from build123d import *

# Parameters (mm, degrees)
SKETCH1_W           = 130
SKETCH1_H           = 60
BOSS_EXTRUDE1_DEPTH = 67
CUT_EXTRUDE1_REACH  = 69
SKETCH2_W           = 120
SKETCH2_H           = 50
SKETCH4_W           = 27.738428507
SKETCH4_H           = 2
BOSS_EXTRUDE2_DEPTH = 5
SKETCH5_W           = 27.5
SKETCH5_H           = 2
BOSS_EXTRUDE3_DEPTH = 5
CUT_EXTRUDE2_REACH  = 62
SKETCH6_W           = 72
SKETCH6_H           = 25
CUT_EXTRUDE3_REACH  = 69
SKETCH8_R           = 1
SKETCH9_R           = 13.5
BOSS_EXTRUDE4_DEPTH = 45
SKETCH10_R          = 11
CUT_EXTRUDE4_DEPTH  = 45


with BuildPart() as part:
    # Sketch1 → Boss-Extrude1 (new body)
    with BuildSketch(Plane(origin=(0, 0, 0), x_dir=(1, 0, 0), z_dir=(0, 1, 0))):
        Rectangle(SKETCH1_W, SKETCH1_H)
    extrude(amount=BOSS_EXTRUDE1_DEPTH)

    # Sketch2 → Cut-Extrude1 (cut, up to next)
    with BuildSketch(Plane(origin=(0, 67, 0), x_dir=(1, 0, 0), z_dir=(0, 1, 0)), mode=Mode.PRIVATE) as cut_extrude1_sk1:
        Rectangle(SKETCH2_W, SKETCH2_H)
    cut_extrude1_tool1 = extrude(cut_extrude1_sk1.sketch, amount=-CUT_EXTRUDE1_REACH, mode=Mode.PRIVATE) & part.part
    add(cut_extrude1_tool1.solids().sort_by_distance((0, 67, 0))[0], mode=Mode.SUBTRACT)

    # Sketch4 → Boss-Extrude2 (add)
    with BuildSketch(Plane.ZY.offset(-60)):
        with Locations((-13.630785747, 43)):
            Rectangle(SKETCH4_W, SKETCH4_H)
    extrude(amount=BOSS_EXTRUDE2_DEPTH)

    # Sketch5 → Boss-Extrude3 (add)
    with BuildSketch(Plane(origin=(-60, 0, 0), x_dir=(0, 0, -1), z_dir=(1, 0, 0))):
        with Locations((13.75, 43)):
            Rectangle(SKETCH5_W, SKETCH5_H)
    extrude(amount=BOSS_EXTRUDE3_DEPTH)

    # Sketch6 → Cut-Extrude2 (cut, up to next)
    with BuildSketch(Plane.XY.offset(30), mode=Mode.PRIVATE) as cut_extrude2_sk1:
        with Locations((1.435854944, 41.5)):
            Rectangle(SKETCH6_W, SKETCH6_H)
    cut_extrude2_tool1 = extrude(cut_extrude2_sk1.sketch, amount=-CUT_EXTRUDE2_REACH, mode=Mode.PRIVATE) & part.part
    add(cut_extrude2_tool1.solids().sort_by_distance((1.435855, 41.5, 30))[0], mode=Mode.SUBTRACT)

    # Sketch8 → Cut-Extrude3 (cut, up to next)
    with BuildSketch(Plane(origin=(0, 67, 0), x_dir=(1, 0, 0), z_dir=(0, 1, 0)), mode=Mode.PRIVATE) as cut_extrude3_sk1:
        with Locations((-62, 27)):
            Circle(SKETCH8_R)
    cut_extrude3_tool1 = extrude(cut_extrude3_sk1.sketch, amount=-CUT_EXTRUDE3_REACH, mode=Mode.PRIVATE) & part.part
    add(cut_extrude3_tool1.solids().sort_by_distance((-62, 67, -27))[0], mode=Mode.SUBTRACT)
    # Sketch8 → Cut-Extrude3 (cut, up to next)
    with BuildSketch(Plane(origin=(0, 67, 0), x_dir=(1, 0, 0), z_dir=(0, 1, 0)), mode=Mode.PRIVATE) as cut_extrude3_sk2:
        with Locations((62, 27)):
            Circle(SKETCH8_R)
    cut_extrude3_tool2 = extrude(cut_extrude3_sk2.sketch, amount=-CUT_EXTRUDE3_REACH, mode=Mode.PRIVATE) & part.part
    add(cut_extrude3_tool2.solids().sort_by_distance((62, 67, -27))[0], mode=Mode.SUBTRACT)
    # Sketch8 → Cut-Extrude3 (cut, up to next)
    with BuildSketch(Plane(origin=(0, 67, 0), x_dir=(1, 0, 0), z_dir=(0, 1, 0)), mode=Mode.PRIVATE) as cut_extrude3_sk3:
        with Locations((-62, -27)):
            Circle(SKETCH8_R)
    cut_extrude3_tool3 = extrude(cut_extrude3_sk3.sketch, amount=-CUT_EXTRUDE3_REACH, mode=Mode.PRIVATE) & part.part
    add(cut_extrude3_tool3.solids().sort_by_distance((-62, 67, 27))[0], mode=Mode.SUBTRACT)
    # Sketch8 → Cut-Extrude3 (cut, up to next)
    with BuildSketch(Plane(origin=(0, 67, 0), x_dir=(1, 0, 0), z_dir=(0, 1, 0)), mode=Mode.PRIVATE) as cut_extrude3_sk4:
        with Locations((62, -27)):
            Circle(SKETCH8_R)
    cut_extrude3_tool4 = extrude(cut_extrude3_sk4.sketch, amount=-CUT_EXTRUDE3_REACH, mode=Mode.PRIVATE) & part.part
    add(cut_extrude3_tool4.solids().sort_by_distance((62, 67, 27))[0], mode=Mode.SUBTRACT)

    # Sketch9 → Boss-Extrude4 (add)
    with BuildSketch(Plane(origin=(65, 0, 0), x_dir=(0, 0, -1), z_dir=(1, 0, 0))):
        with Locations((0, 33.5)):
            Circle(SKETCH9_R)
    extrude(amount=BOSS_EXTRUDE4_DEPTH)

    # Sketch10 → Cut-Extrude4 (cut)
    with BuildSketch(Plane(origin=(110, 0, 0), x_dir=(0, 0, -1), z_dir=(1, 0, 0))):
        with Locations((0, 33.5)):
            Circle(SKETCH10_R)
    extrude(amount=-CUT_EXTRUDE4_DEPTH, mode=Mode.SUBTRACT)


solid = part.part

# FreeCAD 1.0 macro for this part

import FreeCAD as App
import Part
import Sketcher
from FreeCAD import Vector
Q = App.Units.Quantity

doc = App.newDocument("Part")
body = doc.addObject("PartDesign::Body", "Body")

sketch1 = doc.addObject("Sketcher::SketchObject", "Sketch")
body.addObject(sketch1)
sketch1.AttachmentSupport = (doc.XZ_Plane, [""])
sketch1.MapMode = "FlatFace"
sketch1.addGeometry([
    Part.LineSegment(Vector(-65, -30, 0), Vector(-65, 30, 0)),
    Part.LineSegment(Vector(-65, 30, 0), Vector(65, 30, 0)),
    Part.LineSegment(Vector(65, 30, 0), Vector(65, -30, 0)),
    Part.LineSegment(Vector(65, -30, 0), Vector(-65, -30, 0)),
], False)
sketch1.addConstraint([
    Sketcher.Constraint("Coincident", 0, 2, 1, 1),
    Sketcher.Constraint("Coincident", 1, 2, 2, 1),
    Sketcher.Constraint("Coincident", 2, 2, 3, 1),
    Sketcher.Constraint("Coincident", 3, 2, 0, 1),
    Sketcher.Constraint("Vertical", 0),
    Sketcher.Constraint("Horizontal", 1),
    Sketcher.Constraint("Vertical", 2),
    Sketcher.Constraint("Horizontal", 3),
    Sketcher.Constraint("Symmetric", 0, 2, 2, 2, -1, 1),
    Sketcher.Constraint("DistanceX", 1, 1, 1, 2, Q("130 mm")),
    Sketcher.Constraint("DistanceY", 0, 1, 0, 2, Q("60 mm")),
])
pad1 = doc.addObject("PartDesign::Pad", "Pad")
body.addObject(pad1)
pad1.Profile = sketch1
pad1.Length = 67
pad1.Reversed = True

sketch2 = doc.addObject("Sketcher::SketchObject", "Sketch001")
body.addObject(sketch2)
sketch2.AttachmentSupport = (doc.XZ_Plane, [""])
sketch2.MapMode = "FlatFace"
sketch2.AttachmentOffset = App.Placement(Vector(0, 0, -67), App.Rotation())
sketch2.addGeometry([
    Part.LineSegment(Vector(-60, -25, 0), Vector(-60, 25, 0)),
    Part.LineSegment(Vector(-60, 25, 0), Vector(60, 25, 0)),
    Part.LineSegment(Vector(60, 25, 0), Vector(60, -25, 0)),
    Part.LineSegment(Vector(60, -25, 0), Vector(-60, -25, 0)),
], False)
sketch2.addConstraint([
    Sketcher.Constraint("Coincident", 0, 2, 1, 1),
    Sketcher.Constraint("Coincident", 1, 2, 2, 1),
    Sketcher.Constraint("Coincident", 2, 2, 3, 1),
    Sketcher.Constraint("Coincident", 3, 2, 0, 1),
    Sketcher.Constraint("Vertical", 0),
    Sketcher.Constraint("Horizontal", 1),
    Sketcher.Constraint("Vertical", 2),
    Sketcher.Constraint("Horizontal", 3),
    Sketcher.Constraint("Symmetric", 0, 2, 2, 2, -1, 1),
    Sketcher.Constraint("DistanceX", 1, 1, 1, 2, Q("120 mm")),
    Sketcher.Constraint("DistanceY", 0, 1, 0, 2, Q("50 mm")),
])
pocket1 = doc.addObject("PartDesign::Pocket", "Pocket")
body.addObject(pocket1)
pocket1.Profile = sketch2
pocket1.Type = "UpToFirst"
pocket1.Reversed = True

sketch3 = doc.addObject("Sketcher::SketchObject", "Sketch002")
body.addObject(sketch3)
sketch3.AttachmentSupport = (doc.YZ_Plane, [""])
sketch3.MapMode = "FlatFace"
sketch3.AttachmentOffset = App.Placement(Vector(0, 0, 60), App.Rotation())
sketch3.addGeometry([
    Part.LineSegment(Vector(44, -27.5, 0), Vector(42, -27.5, 0)),
    Part.LineSegment(Vector(42, -27.5, 0), Vector(42, 0.2, 0)),
    Part.LineSegment(Vector(42, 0.2, 0), Vector(44, 0.2, 0)),
    Part.LineSegment(Vector(44, 0.2, 0), Vector(44, -27.5, 0)),
], False)
sketch3.addConstraint([
    Sketcher.Constraint("Coincident", 0, 2, 1, 1),
    Sketcher.Constraint("Coincident", 1, 2, 2, 1),
    Sketcher.Constraint("Coincident", 2, 2, 3, 1),
    Sketcher.Constraint("Coincident", 3, 2, 0, 1),
    Sketcher.Constraint("Horizontal", 0),
    Sketcher.Constraint("Vertical", 1),
    Sketcher.Constraint("Horizontal", 2),
    Sketcher.Constraint("Vertical", 3),
    Sketcher.Constraint("DistanceX", 0, 2, 0, 1, Q("2 mm")),
    Sketcher.Constraint("DistanceX", -1, 1, 0, 2, Q("42 mm")),
    Sketcher.Constraint("DistanceY", 0, 2, -1, 1, Q("27.5 mm")),
    Sketcher.Constraint("DistanceY", 1, 1, 1, 2, Q("27.738429 mm")),
])
pad2 = doc.addObject("PartDesign::Pad", "Pad001")
body.addObject(pad2)
pad2.Profile = sketch3
pad2.Length = 5
pad2.Reversed = True

sketch4 = doc.addObject("Sketcher::SketchObject", "Sketch003")
body.addObject(sketch4)
sketch4.AttachmentSupport = (doc.YZ_Plane, [""])
sketch4.MapMode = "FlatFace"
sketch4.AttachmentOffset = App.Placement(Vector(0, 0, -60), App.Rotation())
sketch4.addGeometry([
    Part.LineSegment(Vector(44, 0, 0), Vector(42, 0, 0)),
    Part.LineSegment(Vector(42, 0, 0), Vector(42, -27.5, 0)),
    Part.LineSegment(Vector(42, -27.5, 0), Vector(44, -27.5, 0)),
    Part.LineSegment(Vector(44, -27.5, 0), Vector(44, 0, 0)),
], False)
sketch4.addConstraint([
    Sketcher.Constraint("Coincident", 0, 2, 1, 1),
    Sketcher.Constraint("Coincident", 1, 2, 2, 1),
    Sketcher.Constraint("Coincident", 2, 2, 3, 1),
    Sketcher.Constraint("Coincident", 3, 2, 0, 1),
    Sketcher.Constraint("Horizontal", 0),
    Sketcher.Constraint("Vertical", 1),
    Sketcher.Constraint("Horizontal", 2),
    Sketcher.Constraint("Vertical", 3),
    Sketcher.Constraint("PointOnObject", 0, 2, -1),
    Sketcher.Constraint("DistanceX", 0, 2, 0, 1, Q("2 mm")),
    Sketcher.Constraint("DistanceY", 1, 2, 1, 1, Q("27.5 mm")),
    Sketcher.Constraint("DistanceX", -1, 1, 0, 2, Q("42 mm")),
])
pad3 = doc.addObject("PartDesign::Pad", "Pad002")
body.addObject(pad3)
pad3.Profile = sketch4
pad3.Length = 5

sketch5 = doc.addObject("Sketcher::SketchObject", "Sketch004")
body.addObject(sketch5)
sketch5.AttachmentSupport = (doc.XY_Plane, [""])
sketch5.MapMode = "FlatFace"
sketch5.AttachmentOffset = App.Placement(Vector(0, 0, 30), App.Rotation())
sketch5.addGeometry([
    Part.LineSegment(Vector(-35, 54, 0), Vector(-35, 29, 0)),
    Part.LineSegment(Vector(-35, 29, 0), Vector(37, 29, 0)),
    Part.LineSegment(Vector(37, 29, 0), Vector(37, 54, 0)),
    Part.LineSegment(Vector(37, 54, 0), Vector(-35, 54, 0)),
], False)
sketch5.addConstraint([
    Sketcher.Constraint("Coincident", 0, 2, 1, 1),
    Sketcher.Constraint("Coincident", 1, 2, 2, 1),
    Sketcher.Constraint("Coincident", 2, 2, 3, 1),
    Sketcher.Constraint("Coincident", 3, 2, 0, 1),
    Sketcher.Constraint("Vertical", 0),
    Sketcher.Constraint("Horizontal", 1),
    Sketcher.Constraint("Vertical", 2),
    Sketcher.Constraint("Horizontal", 3),
    Sketcher.Constraint("DistanceX", 1, 1, 1, 2, Q("72 mm")),
    Sketcher.Constraint("DistanceY", 0, 2, 0, 1, Q("25 mm")),
    Sketcher.Constraint("DistanceY", -1, 1, 0, 2, Q("29 mm")),
    Sketcher.Constraint("DistanceX", 0, 2, -1, 1, Q("34.564145 mm")),
])
pocket2 = doc.addObject("PartDesign::Pocket", "Pocket001")
body.addObject(pocket2)
pocket2.Profile = sketch5
pocket2.Type = "UpToFirst"

sketch6 = doc.addObject("Sketcher::SketchObject", "Sketch005")
body.addObject(sketch6)
sketch6.AttachmentSupport = (doc.XZ_Plane, [""])
sketch6.MapMode = "FlatFace"
sketch6.AttachmentOffset = App.Placement(Vector(0, 0, -67), App.Rotation())
sketch6.addGeometry(Part.Circle(Vector(-62, -27, 0), Vector(0, 0, 1), 1), False)
sketch6.addConstraint([
    Sketcher.Constraint("Diameter", 0, Q("2 mm")),
    Sketcher.Constraint("DistanceX", 0, 3, -1, 1, Q("62 mm")),
    Sketcher.Constraint("DistanceY", 0, 3, -1, 1, Q("27 mm")),
])
pocket3 = doc.addObject("PartDesign::Pocket", "Pocket002")
body.addObject(pocket3)
pocket3.Profile = sketch6
pocket3.Type = "UpToFirst"
pocket3.Reversed = True

sketch7 = doc.addObject("Sketcher::SketchObject", "Sketch006")
body.addObject(sketch7)
sketch7.AttachmentSupport = (doc.XZ_Plane, [""])
sketch7.MapMode = "FlatFace"
sketch7.AttachmentOffset = App.Placement(Vector(0, 0, -67), App.Rotation())
sketch7.addGeometry(Part.Circle(Vector(62, -27, 0), Vector(0, 0, 1), 1), False)
sketch7.addConstraint([
    Sketcher.Constraint("Diameter", 0, Q("2 mm")),
    Sketcher.Constraint("DistanceX", -1, 1, 0, 3, Q("62 mm")),
    Sketcher.Constraint("DistanceY", 0, 3, -1, 1, Q("27 mm")),
])
pocket4 = doc.addObject("PartDesign::Pocket", "Pocket003")
body.addObject(pocket4)
pocket4.Profile = sketch7
pocket4.Type = "UpToFirst"
pocket4.Reversed = True

sketch8 = doc.addObject("Sketcher::SketchObject", "Sketch007")
body.addObject(sketch8)
sketch8.AttachmentSupport = (doc.XZ_Plane, [""])
sketch8.MapMode = "FlatFace"
sketch8.AttachmentOffset = App.Placement(Vector(0, 0, -67), App.Rotation())
sketch8.addGeometry(Part.Circle(Vector(-62, 27, 0), Vector(0, 0, 1), 1), False)
sketch8.addConstraint([
    Sketcher.Constraint("Diameter", 0, Q("2 mm")),
    Sketcher.Constraint("DistanceX", 0, 3, -1, 1, Q("62 mm")),
    Sketcher.Constraint("DistanceY", -1, 1, 0, 3, Q("27 mm")),
])
pocket5 = doc.addObject("PartDesign::Pocket", "Pocket004")
body.addObject(pocket5)
pocket5.Profile = sketch8
pocket5.Type = "UpToFirst"
pocket5.Reversed = True

sketch9 = doc.addObject("Sketcher::SketchObject", "Sketch008")
body.addObject(sketch9)
sketch9.AttachmentSupport = (doc.XZ_Plane, [""])
sketch9.MapMode = "FlatFace"
sketch9.AttachmentOffset = App.Placement(Vector(0, 0, -67), App.Rotation())
sketch9.addGeometry(Part.Circle(Vector(62, 27, 0), Vector(0, 0, 1), 1), False)
sketch9.addConstraint([
    Sketcher.Constraint("Diameter", 0, Q("2 mm")),
    Sketcher.Constraint("DistanceX", -1, 1, 0, 3, Q("62 mm")),
    Sketcher.Constraint("DistanceY", -1, 1, 0, 3, Q("27 mm")),
])
pocket6 = doc.addObject("PartDesign::Pocket", "Pocket005")
body.addObject(pocket6)
pocket6.Profile = sketch9
pocket6.Type = "UpToFirst"
pocket6.Reversed = True

sketch10 = doc.addObject("Sketcher::SketchObject", "Sketch009")
body.addObject(sketch10)
sketch10.AttachmentSupport = (doc.YZ_Plane, [""])
sketch10.MapMode = "FlatFace"
sketch10.AttachmentOffset = App.Placement(Vector(0, 0, 65), App.Rotation())
sketch10.addGeometry(Part.Circle(Vector(34, 0, 0), Vector(0, 0, 1), 14), False)
sketch10.addConstraint([
    Sketcher.Constraint("PointOnObject", 0, 3, -1),
    Sketcher.Constraint("Diameter", 0, Q("27 mm")),
    Sketcher.Constraint("DistanceX", -1, 1, 0, 3, Q("33.5 mm")),
])
pad4 = doc.addObject("PartDesign::Pad", "Pad003")
body.addObject(pad4)
pad4.Profile = sketch10
pad4.Length = 45

sketch11 = doc.addObject("Sketcher::SketchObject", "Sketch010")
body.addObject(sketch11)
sketch11.AttachmentSupport = (doc.YZ_Plane, [""])
sketch11.MapMode = "FlatFace"
sketch11.AttachmentOffset = App.Placement(Vector(0, 0, 110), App.Rotation())
sketch11.addGeometry(Part.Circle(Vector(34, 0, 0), Vector(0, 0, 1), 11), False)
sketch11.addConstraint([
    Sketcher.Constraint("PointOnObject", 0, 3, -1),
    Sketcher.Constraint("Diameter", 0, Q("22 mm")),
    Sketcher.Constraint("DistanceX", -1, 1, 0, 3, Q("33.5 mm")),
])
pocket7 = doc.addObject("PartDesign::Pocket", "Pocket006")
body.addObject(pocket7)
pocket7.Profile = sketch11
pocket7.Length = 45

doc.recompute()
